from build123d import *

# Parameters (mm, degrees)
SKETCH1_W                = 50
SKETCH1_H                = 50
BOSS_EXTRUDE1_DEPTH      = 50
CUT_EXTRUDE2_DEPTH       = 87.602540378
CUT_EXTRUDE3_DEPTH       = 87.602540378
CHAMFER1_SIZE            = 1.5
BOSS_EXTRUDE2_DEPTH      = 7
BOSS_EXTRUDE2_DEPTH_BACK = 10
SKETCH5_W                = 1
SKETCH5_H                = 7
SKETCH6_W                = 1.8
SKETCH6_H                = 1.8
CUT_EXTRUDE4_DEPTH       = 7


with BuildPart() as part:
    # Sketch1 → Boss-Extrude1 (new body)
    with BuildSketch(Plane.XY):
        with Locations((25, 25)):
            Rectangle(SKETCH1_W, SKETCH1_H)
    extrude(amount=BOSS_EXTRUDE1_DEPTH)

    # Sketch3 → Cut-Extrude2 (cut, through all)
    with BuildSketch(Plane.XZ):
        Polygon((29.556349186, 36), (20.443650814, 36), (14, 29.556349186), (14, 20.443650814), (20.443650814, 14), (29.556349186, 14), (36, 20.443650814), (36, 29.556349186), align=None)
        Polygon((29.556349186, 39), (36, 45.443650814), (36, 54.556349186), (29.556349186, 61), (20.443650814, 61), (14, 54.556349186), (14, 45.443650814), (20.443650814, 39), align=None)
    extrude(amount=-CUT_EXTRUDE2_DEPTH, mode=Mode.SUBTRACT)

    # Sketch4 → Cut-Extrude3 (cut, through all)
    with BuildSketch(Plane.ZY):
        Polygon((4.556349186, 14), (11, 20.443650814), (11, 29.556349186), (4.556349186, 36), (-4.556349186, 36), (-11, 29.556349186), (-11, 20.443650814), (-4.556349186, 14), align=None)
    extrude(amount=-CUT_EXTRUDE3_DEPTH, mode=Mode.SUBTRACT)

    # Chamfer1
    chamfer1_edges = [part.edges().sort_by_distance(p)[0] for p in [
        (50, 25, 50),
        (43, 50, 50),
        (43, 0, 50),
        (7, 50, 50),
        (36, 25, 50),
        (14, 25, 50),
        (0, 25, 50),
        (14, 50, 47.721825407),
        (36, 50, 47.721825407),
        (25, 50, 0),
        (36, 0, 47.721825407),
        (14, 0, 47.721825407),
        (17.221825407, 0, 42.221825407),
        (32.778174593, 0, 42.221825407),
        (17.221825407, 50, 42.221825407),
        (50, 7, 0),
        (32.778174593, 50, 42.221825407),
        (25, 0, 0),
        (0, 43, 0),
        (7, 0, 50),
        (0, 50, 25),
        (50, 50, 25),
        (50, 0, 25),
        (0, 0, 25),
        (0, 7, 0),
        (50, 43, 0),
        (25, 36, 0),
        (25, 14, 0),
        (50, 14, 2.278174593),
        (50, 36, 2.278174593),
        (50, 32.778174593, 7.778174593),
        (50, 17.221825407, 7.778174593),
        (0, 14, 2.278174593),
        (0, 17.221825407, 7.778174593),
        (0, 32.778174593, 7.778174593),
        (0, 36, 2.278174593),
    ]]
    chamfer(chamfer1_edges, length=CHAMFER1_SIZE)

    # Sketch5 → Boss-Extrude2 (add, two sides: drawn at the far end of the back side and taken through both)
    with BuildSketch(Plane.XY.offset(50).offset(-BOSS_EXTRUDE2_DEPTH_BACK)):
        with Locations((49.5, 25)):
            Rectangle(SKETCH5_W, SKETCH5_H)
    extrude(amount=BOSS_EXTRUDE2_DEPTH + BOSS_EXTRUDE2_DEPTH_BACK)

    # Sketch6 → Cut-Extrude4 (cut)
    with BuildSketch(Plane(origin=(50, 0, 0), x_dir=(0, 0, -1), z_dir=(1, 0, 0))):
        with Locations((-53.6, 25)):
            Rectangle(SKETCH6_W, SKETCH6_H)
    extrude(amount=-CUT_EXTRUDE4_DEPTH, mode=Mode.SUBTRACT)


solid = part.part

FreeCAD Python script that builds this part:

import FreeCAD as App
import Part
import Sketcher
from FreeCAD import Vector


def edges_at(feature, points):
    """Names of the edges that pass closest to the given points."""
    edges = feature.Shape.Edges
    near = lambda p: min(range(len(edges)), key=lambda i: edges[i].distToShape(Part.Vertex(*p))[0])
    return sorted({f"Edge{near(p) + 1}" for p in points})

doc = App.newDocument("Part")
body = doc.addObject("PartDesign::Body", "Body")

sketch1 = body.newObject("Sketcher::SketchObject", "Sketch")
sketch1.AttachmentSupport = (doc.getObject("XY_Plane"), [""])
sketch1.MapMode = "FlatFace"
sketch1.addGeometry([
    Part.LineSegment(Vector(0, 50, 0), Vector(0, 0, 0)),
    Part.LineSegment(Vector(0, 0, 0), Vector(50, 0, 0)),
    Part.LineSegment(Vector(50, 0, 0), Vector(50, 50, 0)),
    Part.LineSegment(Vector(50, 50, 0), Vector(0, 50, 0)),
], False)
sketch1.addConstraint([
    Sketcher.Constraint("Coincident", 0, 2, 1, 1),
    Sketcher.Constraint("Coincident", 1, 2, 2, 1),
    Sketcher.Constraint("Coincident", 2, 2, 3, 1),
    Sketcher.Constraint("Coincident", 3, 2, 0, 1),
    Sketcher.Constraint("Vertical", 0),
    Sketcher.Constraint("Horizontal", 1),
    Sketcher.Constraint("Vertical", 2),
    Sketcher.Constraint("Horizontal", 3),
    Sketcher.Constraint("Coincident", 0, 2, -1, 1),
    Sketcher.Constraint("Equal", 3, 0),
    Sketcher.Constraint("DistanceX", 1, 1, 1, 2, 50.0),
])
pad1 = body.newObject("PartDesign::Pad", "Pad")
pad1.Profile = sketch1
pad1.Length = 50

sketch2 = body.newObject("Sketcher::SketchObject", "Sketch001")
sketch2.AttachmentSupport = (doc.getObject("XZ_Plane"), [""])
sketch2.MapMode = "FlatFace"
sketch2.addGeometry([
    Part.LineSegment(Vector(29.556349, 36, 0), Vector(20.443651, 36, 0)),
    Part.LineSegment(Vector(20.443651, 36, 0), Vector(14, 29.556349, 0)),
    Part.LineSegment(Vector(14, 29.556349, 0), Vector(14, 20.443651, 0)),
    Part.LineSegment(Vector(14, 20.443651, 0), Vector(20.443651, 14, 0)),
    Part.LineSegment(Vector(20.443651, 14, 0), Vector(29.556349, 14, 0)),
    Part.LineSegment(Vector(29.556349, 14, 0), Vector(36, 20.443651, 0)),
    Part.LineSegment(Vector(36, 20.443651, 0), Vector(36, 29.556349, 0)),
    Part.LineSegment(Vector(36, 29.556349, 0), Vector(29.556349, 36, 0)),
    Part.LineSegment(Vector(29.556349, 39, 0), Vector(36, 45.443651, 0)),
    Part.LineSegment(Vector(36, 45.443651, 0), Vector(36, 54.556349, 0)),
    Part.LineSegment(Vector(36, 54.556349, 0), Vector(29.556349, 61, 0)),
    Part.LineSegment(Vector(29.556349, 61, 0), Vector(20.443651, 61, 0)),
    Part.LineSegment(Vector(20.443651, 61, 0), Vector(14, 54.556349, 0)),
    Part.LineSegment(Vector(14, 54.556349, 0), Vector(14, 45.443651, 0)),
    Part.LineSegment(Vector(14, 45.443651, 0), Vector(20.443651, 39, 0)),
    Part.LineSegment(Vector(20.443651, 39, 0), Vector(29.556349, 39, 0)),
], False)
sketch2.addConstraint([
    Sketcher.Constraint("Coincident", 0, 2, 1, 1),
    Sketcher.Constraint("Coincident", 1, 2, 2, 1),
    Sketcher.Constraint("Coincident", 2, 2, 3, 1),
    Sketcher.Constraint("Coincident", 3, 2, 4, 1),
    Sketcher.Constraint("Coincident", 4, 2, 5, 1),
    Sketcher.Constraint("Coincident", 5, 2, 6, 1),
    Sketcher.Constraint("Coincident", 6, 2, 7, 1),
    Sketcher.Constraint("Coincident", 7, 2, 0, 1),
    Sketcher.Constraint("Coincident", 8, 2, 9, 1),
    Sketcher.Constraint("Coincident", 9, 2, 10, 1),
    Sketcher.Constraint("Coincident", 10, 2, 11, 1),
    Sketcher.Constraint("Coincident", 11, 2, 12, 1),
    Sketcher.Constraint("Coincident", 12, 2, 13, 1),
    Sketcher.Constraint("Coincident", 13, 2, 14, 1),
    Sketcher.Constraint("Coincident", 14, 2, 15, 1),
    Sketcher.Constraint("Coincident", 15, 2, 8, 1),
    Sketcher.Constraint("Horizontal", 0),
    Sketcher.Constraint("Vertical", 2),
    Sketcher.Constraint("Horizontal", 4),
    Sketcher.Constraint("Vertical", 6),
    Sketcher.Constraint("Vertical", 9),
    Sketcher.Constraint("Horizontal", 11),
    Sketcher.Constraint("Vertical", 13),
    Sketcher.Constraint("Horizontal", 15),
    Sketcher.Constraint("Perpendicular", 1, 3),
    Sketcher.Constraint("Perpendicular", 3, 5),
    Sketcher.Constraint("Perpendicular", 5, 7),
    Sketcher.Constraint("Perpendicular", 7, 8),
    Sketcher.Constraint("Perpendicular", 8, 10),
    Sketcher.Constraint("Perpendicular", 10, 12),
    Sketcher.Constraint("Perpendicular", 12, 14),
    Sketcher.Constraint("Horizontal", 2, 2, 5, 2),
    Sketcher.Constraint("Horizontal", 1, 2, 6, 2),
    Sketcher.Constraint("Horizontal", 9, 2, 12, 2),
    Sketcher.Constraint("Horizontal", 8, 2, 13, 2),
    Sketcher.Constraint("Vertical", 0, 2, 3, 2),
    Sketcher.Constraint("Vertical", 4, 2, 7, 2),
    Sketcher.Constraint("Vertical", 6, 2, 8, 2),
    Sketcher.Constraint("Vertical", 7, 2, 10, 2),
    Sketcher.Constraint("Vertical", 3, 2, 11, 2),
    Sketcher.Constraint("Vertical", 11, 2, 14, 2),
    Sketcher.Constraint("Equal", 15, 2),
    Sketcher.Constraint("Equal", 6, 9),
    Sketcher.Constraint("DistanceY", -1, 1, 0, 2, 36.0),
    Sketcher.Constraint("DistanceX", -1, 1, 1, 2, 14.0),
    Sketcher.Constraint("DistanceY", -1, 1, 3, 2, 14.0),
    Sketcher.Constraint("DistanceY", -1, 1, 10, 2, 61.0),
    Sketcher.Constraint("DistanceX", 0, 2, 0, 1, 9.112698),
])
pocket1 = body.newObject("PartDesign::Pocket", "Pocket")
pocket1.Profile = sketch2
pocket1.Type = "ThroughAll"

sketch3 = body.newObject("Sketcher::SketchObject", "Sketch002")
sketch3.AttachmentSupport = (doc.getObject("YZ_Plane"), [""])
sketch3.MapMode = "FlatFace"
sketch3.addGeometry([
    Part.LineSegment(Vector(14, 4.556349, 0), Vector(20.443651, 11, 0)),
    Part.LineSegment(Vector(20.443651, 11, 0), Vector(29.556349, 11, 0)),
    Part.LineSegment(Vector(29.556349, 11, 0), Vector(36, 4.556349, 0)),
    Part.LineSegment(Vector(36, 4.556349, 0), Vector(36, -4.556349, 0)),
    Part.LineSegment(Vector(36, -4.556349, 0), Vector(29.556349, -11, 0)),
    Part.LineSegment(Vector(29.556349, -11, 0), Vector(20.443651, -11, 0)),
    Part.LineSegment(Vector(20.443651, -11, 0), Vector(14, -4.556349, 0)),
    Part.LineSegment(Vector(14, -4.556349, 0), Vector(14, 4.556349, 0)),
], False)
sketch3.addConstraint([
    Sketcher.Constraint("Coincident", 0, 2, 1, 1),
    Sketcher.Constraint("Coincident", 1, 2, 2, 1),
    Sketcher.Constraint("Coincident", 2, 2, 3, 1),
    Sketcher.Constraint("Coincident", 3, 2, 4, 1),
    Sketcher.Constraint("Coincident", 4, 2, 5, 1),
    Sketcher.Constraint("Coincident", 5, 2, 6, 1),
    Sketcher.Constraint("Coincident", 6, 2, 7, 1),
    Sketcher.Constraint("Coincident", 7, 2, 0, 1),
    Sketcher.Constraint("Horizontal", 1),
    Sketcher.Constraint("Vertical", 3),
    Sketcher.Constraint("Horizontal", 5),
    Sketcher.Constraint("Vertical", 7),
    Sketcher.Constraint("Symmetric", 1, 2, 4, 2, -1),
    Sketcher.Constraint("Perpendicular", 0, 2),
    Sketcher.Constraint("Perpendicular", 2, 4),
    Sketcher.Constraint("Perpendicular", 4, 6),
    Sketcher.Constraint("Horizontal", 3, 2, 6, 2),
    Sketcher.Constraint("Horizontal", 2, 2, 7, 2),
    Sketcher.Constraint("Vertical", 0, 2, 5, 2),
    Sketcher.Constraint("Equal", 5, 3),
    Sketcher.Constraint("DistanceY", -1, 1, 0, 2, 11.0),
    Sketcher.Constraint("DistanceX", -1, 1, 2, 2, 36.0),
    Sketcher.Constraint("DistanceX", 1, 1, 1, 2, 9.112698),
])
pocket2 = body.newObject("PartDesign::Pocket", "Pocket001")
pocket2.Profile = sketch3
pocket2.Type = "ThroughAll"
pocket2.Reversed = True
doc.recompute()

chamfer = body.newObject("PartDesign::Chamfer", "Chamfer")
chamfer.Base = (pocket2, edges_at(pocket2, [
    (50, 25, 50),
    (43, 50, 50),
    (43, 0, 50),
    (7, 50, 50),
    (36, 25, 50),
    (14, 25, 50),
    (0, 25, 50),
    (14, 50, 47.722),
    (36, 50, 47.722),
    (25, 50, 0),
    (36, 0, 47.722),
    (14, 0, 47.722),
    (17.222, 0, 42.222),
    (32.778, 0, 42.222),
    (17.222, 50, 42.222),
    (50, 7, 0),
    (32.778, 50, 42.222),
    (25, 0, 0),
    (0, 43, 0),
    (7, 0, 50),
    (0, 50, 25),
    (50, 50, 25),
    (50, 0, 25),
    (0, 0, 25),
    (0, 7, 0),
    (50, 43, 0),
    (25, 36, 0),
    (25, 14, 0),
    (50, 14, 2.278),
    (50, 36, 2.278),
    (50, 32.778, 7.778),
    (50, 17.222, 7.778),
    (0, 14, 2.278),
    (0, 17.222, 7.778),
    (0, 32.778, 7.778),
    (0, 36, 2.278),
]))
chamfer.Size = 1.5

sketch4 = body.newObject("Sketcher::SketchObject", "Sketch003")
sketch4.AttachmentSupport = (doc.getObject("XY_Plane"), [""])
sketch4.MapMode = "FlatFace"
sketch4.AttachmentOffset = App.Placement(Vector(0, 0, 50), App.Rotation())
sketch4.addGeometry([
    Part.LineSegment(Vector(49, 28.5, 0), Vector(49, 21.5, 0)),
    Part.LineSegment(Vector(49, 21.5, 0), Vector(50, 21.5, 0)),
    Part.LineSegment(Vector(50, 21.5, 0), Vector(50, 28.5, 0)),
    Part.LineSegment(Vector(50, 28.5, 0), Vector(49, 28.5, 0)),
], False)
sketch4.addConstraint([
    Sketcher.Constraint("Coincident", 0, 2, 1, 1),
    Sketcher.Constraint("Coincident", 1, 2, 2, 1),
    Sketcher.Constraint("Coincident", 2, 2, 3, 1),
    Sketcher.Constraint("Coincident", 3, 2, 0, 1),
    Sketcher.Constraint("Vertical", 0),
    Sketcher.Constraint("Horizontal", 1),
    Sketcher.Constraint("Vertical", 2),
    Sketcher.Constraint("Horizontal", 3),
    Sketcher.Constraint("DistanceX", 1, 1, 1, 2, 1.0),
    Sketcher.Constraint("DistanceY", 0, 2, 0, 1, 7.0),
    Sketcher.Constraint("DistanceX", -1, 1, 0, 2, 49.0),
    Sketcher.Constraint("DistanceY", -1, 1, 0, 2, 21.5),
])
pad2 = body.newObject("PartDesign::Pad", "Pad001")
pad2.Profile = sketch4
pad2.Type = "TwoLengths"
pad2.Length = 7
pad2.Length2 = 10

sketch5 = body.newObject("Sketcher::SketchObject", "Sketch004")
sketch5.AttachmentSupport = (doc.getObject("YZ_Plane"), [""])
sketch5.MapMode = "FlatFace"
sketch5.AttachmentOffset = App.Placement(Vector(0, 0, 50), App.Rotation())
sketch5.addGeometry([
    Part.LineSegment(Vector(25.9, 54.5, 0), Vector(24.1, 54.5, 0)),
    Part.LineSegment(Vector(24.1, 54.5, 0), Vector(24.1, 52.7, 0)),
    Part.LineSegment(Vector(24.1, 52.7, 0), Vector(25.9, 52.7, 0)),
    Part.LineSegment(Vector(25.9, 52.7, 0), Vector(25.9, 54.5, 0)),
], False)
sketch5.addConstraint([
    Sketcher.Constraint("Coincident", 0, 2, 1, 1),
    Sketcher.Constraint("Coincident", 1, 2, 2, 1),
    Sketcher.Constraint("Coincident", 2, 2, 3, 1),
    Sketcher.Constraint("Coincident", 3, 2, 0, 1),
    Sketcher.Constraint("Horizontal", 0),
    Sketcher.Constraint("Vertical", 1),
    Sketcher.Constraint("Horizontal", 2),
    Sketcher.Constraint("Vertical", 3),
    Sketcher.Constraint("Equal", 2, 1),
    Sketcher.Constraint("DistanceX", 0, 2, 0, 1, 1.8),
    Sketcher.Constraint("DistanceX", -1, 1, 0, 2, 24.1),
    Sketcher.Constraint("DistanceY", -1, 1, 0, 2, 54.5),
])
pocket3 = body.newObject("PartDesign::Pocket", "Pocket002")
pocket3.Profile = sketch5
pocket3.Length = 7

doc.recompute()
